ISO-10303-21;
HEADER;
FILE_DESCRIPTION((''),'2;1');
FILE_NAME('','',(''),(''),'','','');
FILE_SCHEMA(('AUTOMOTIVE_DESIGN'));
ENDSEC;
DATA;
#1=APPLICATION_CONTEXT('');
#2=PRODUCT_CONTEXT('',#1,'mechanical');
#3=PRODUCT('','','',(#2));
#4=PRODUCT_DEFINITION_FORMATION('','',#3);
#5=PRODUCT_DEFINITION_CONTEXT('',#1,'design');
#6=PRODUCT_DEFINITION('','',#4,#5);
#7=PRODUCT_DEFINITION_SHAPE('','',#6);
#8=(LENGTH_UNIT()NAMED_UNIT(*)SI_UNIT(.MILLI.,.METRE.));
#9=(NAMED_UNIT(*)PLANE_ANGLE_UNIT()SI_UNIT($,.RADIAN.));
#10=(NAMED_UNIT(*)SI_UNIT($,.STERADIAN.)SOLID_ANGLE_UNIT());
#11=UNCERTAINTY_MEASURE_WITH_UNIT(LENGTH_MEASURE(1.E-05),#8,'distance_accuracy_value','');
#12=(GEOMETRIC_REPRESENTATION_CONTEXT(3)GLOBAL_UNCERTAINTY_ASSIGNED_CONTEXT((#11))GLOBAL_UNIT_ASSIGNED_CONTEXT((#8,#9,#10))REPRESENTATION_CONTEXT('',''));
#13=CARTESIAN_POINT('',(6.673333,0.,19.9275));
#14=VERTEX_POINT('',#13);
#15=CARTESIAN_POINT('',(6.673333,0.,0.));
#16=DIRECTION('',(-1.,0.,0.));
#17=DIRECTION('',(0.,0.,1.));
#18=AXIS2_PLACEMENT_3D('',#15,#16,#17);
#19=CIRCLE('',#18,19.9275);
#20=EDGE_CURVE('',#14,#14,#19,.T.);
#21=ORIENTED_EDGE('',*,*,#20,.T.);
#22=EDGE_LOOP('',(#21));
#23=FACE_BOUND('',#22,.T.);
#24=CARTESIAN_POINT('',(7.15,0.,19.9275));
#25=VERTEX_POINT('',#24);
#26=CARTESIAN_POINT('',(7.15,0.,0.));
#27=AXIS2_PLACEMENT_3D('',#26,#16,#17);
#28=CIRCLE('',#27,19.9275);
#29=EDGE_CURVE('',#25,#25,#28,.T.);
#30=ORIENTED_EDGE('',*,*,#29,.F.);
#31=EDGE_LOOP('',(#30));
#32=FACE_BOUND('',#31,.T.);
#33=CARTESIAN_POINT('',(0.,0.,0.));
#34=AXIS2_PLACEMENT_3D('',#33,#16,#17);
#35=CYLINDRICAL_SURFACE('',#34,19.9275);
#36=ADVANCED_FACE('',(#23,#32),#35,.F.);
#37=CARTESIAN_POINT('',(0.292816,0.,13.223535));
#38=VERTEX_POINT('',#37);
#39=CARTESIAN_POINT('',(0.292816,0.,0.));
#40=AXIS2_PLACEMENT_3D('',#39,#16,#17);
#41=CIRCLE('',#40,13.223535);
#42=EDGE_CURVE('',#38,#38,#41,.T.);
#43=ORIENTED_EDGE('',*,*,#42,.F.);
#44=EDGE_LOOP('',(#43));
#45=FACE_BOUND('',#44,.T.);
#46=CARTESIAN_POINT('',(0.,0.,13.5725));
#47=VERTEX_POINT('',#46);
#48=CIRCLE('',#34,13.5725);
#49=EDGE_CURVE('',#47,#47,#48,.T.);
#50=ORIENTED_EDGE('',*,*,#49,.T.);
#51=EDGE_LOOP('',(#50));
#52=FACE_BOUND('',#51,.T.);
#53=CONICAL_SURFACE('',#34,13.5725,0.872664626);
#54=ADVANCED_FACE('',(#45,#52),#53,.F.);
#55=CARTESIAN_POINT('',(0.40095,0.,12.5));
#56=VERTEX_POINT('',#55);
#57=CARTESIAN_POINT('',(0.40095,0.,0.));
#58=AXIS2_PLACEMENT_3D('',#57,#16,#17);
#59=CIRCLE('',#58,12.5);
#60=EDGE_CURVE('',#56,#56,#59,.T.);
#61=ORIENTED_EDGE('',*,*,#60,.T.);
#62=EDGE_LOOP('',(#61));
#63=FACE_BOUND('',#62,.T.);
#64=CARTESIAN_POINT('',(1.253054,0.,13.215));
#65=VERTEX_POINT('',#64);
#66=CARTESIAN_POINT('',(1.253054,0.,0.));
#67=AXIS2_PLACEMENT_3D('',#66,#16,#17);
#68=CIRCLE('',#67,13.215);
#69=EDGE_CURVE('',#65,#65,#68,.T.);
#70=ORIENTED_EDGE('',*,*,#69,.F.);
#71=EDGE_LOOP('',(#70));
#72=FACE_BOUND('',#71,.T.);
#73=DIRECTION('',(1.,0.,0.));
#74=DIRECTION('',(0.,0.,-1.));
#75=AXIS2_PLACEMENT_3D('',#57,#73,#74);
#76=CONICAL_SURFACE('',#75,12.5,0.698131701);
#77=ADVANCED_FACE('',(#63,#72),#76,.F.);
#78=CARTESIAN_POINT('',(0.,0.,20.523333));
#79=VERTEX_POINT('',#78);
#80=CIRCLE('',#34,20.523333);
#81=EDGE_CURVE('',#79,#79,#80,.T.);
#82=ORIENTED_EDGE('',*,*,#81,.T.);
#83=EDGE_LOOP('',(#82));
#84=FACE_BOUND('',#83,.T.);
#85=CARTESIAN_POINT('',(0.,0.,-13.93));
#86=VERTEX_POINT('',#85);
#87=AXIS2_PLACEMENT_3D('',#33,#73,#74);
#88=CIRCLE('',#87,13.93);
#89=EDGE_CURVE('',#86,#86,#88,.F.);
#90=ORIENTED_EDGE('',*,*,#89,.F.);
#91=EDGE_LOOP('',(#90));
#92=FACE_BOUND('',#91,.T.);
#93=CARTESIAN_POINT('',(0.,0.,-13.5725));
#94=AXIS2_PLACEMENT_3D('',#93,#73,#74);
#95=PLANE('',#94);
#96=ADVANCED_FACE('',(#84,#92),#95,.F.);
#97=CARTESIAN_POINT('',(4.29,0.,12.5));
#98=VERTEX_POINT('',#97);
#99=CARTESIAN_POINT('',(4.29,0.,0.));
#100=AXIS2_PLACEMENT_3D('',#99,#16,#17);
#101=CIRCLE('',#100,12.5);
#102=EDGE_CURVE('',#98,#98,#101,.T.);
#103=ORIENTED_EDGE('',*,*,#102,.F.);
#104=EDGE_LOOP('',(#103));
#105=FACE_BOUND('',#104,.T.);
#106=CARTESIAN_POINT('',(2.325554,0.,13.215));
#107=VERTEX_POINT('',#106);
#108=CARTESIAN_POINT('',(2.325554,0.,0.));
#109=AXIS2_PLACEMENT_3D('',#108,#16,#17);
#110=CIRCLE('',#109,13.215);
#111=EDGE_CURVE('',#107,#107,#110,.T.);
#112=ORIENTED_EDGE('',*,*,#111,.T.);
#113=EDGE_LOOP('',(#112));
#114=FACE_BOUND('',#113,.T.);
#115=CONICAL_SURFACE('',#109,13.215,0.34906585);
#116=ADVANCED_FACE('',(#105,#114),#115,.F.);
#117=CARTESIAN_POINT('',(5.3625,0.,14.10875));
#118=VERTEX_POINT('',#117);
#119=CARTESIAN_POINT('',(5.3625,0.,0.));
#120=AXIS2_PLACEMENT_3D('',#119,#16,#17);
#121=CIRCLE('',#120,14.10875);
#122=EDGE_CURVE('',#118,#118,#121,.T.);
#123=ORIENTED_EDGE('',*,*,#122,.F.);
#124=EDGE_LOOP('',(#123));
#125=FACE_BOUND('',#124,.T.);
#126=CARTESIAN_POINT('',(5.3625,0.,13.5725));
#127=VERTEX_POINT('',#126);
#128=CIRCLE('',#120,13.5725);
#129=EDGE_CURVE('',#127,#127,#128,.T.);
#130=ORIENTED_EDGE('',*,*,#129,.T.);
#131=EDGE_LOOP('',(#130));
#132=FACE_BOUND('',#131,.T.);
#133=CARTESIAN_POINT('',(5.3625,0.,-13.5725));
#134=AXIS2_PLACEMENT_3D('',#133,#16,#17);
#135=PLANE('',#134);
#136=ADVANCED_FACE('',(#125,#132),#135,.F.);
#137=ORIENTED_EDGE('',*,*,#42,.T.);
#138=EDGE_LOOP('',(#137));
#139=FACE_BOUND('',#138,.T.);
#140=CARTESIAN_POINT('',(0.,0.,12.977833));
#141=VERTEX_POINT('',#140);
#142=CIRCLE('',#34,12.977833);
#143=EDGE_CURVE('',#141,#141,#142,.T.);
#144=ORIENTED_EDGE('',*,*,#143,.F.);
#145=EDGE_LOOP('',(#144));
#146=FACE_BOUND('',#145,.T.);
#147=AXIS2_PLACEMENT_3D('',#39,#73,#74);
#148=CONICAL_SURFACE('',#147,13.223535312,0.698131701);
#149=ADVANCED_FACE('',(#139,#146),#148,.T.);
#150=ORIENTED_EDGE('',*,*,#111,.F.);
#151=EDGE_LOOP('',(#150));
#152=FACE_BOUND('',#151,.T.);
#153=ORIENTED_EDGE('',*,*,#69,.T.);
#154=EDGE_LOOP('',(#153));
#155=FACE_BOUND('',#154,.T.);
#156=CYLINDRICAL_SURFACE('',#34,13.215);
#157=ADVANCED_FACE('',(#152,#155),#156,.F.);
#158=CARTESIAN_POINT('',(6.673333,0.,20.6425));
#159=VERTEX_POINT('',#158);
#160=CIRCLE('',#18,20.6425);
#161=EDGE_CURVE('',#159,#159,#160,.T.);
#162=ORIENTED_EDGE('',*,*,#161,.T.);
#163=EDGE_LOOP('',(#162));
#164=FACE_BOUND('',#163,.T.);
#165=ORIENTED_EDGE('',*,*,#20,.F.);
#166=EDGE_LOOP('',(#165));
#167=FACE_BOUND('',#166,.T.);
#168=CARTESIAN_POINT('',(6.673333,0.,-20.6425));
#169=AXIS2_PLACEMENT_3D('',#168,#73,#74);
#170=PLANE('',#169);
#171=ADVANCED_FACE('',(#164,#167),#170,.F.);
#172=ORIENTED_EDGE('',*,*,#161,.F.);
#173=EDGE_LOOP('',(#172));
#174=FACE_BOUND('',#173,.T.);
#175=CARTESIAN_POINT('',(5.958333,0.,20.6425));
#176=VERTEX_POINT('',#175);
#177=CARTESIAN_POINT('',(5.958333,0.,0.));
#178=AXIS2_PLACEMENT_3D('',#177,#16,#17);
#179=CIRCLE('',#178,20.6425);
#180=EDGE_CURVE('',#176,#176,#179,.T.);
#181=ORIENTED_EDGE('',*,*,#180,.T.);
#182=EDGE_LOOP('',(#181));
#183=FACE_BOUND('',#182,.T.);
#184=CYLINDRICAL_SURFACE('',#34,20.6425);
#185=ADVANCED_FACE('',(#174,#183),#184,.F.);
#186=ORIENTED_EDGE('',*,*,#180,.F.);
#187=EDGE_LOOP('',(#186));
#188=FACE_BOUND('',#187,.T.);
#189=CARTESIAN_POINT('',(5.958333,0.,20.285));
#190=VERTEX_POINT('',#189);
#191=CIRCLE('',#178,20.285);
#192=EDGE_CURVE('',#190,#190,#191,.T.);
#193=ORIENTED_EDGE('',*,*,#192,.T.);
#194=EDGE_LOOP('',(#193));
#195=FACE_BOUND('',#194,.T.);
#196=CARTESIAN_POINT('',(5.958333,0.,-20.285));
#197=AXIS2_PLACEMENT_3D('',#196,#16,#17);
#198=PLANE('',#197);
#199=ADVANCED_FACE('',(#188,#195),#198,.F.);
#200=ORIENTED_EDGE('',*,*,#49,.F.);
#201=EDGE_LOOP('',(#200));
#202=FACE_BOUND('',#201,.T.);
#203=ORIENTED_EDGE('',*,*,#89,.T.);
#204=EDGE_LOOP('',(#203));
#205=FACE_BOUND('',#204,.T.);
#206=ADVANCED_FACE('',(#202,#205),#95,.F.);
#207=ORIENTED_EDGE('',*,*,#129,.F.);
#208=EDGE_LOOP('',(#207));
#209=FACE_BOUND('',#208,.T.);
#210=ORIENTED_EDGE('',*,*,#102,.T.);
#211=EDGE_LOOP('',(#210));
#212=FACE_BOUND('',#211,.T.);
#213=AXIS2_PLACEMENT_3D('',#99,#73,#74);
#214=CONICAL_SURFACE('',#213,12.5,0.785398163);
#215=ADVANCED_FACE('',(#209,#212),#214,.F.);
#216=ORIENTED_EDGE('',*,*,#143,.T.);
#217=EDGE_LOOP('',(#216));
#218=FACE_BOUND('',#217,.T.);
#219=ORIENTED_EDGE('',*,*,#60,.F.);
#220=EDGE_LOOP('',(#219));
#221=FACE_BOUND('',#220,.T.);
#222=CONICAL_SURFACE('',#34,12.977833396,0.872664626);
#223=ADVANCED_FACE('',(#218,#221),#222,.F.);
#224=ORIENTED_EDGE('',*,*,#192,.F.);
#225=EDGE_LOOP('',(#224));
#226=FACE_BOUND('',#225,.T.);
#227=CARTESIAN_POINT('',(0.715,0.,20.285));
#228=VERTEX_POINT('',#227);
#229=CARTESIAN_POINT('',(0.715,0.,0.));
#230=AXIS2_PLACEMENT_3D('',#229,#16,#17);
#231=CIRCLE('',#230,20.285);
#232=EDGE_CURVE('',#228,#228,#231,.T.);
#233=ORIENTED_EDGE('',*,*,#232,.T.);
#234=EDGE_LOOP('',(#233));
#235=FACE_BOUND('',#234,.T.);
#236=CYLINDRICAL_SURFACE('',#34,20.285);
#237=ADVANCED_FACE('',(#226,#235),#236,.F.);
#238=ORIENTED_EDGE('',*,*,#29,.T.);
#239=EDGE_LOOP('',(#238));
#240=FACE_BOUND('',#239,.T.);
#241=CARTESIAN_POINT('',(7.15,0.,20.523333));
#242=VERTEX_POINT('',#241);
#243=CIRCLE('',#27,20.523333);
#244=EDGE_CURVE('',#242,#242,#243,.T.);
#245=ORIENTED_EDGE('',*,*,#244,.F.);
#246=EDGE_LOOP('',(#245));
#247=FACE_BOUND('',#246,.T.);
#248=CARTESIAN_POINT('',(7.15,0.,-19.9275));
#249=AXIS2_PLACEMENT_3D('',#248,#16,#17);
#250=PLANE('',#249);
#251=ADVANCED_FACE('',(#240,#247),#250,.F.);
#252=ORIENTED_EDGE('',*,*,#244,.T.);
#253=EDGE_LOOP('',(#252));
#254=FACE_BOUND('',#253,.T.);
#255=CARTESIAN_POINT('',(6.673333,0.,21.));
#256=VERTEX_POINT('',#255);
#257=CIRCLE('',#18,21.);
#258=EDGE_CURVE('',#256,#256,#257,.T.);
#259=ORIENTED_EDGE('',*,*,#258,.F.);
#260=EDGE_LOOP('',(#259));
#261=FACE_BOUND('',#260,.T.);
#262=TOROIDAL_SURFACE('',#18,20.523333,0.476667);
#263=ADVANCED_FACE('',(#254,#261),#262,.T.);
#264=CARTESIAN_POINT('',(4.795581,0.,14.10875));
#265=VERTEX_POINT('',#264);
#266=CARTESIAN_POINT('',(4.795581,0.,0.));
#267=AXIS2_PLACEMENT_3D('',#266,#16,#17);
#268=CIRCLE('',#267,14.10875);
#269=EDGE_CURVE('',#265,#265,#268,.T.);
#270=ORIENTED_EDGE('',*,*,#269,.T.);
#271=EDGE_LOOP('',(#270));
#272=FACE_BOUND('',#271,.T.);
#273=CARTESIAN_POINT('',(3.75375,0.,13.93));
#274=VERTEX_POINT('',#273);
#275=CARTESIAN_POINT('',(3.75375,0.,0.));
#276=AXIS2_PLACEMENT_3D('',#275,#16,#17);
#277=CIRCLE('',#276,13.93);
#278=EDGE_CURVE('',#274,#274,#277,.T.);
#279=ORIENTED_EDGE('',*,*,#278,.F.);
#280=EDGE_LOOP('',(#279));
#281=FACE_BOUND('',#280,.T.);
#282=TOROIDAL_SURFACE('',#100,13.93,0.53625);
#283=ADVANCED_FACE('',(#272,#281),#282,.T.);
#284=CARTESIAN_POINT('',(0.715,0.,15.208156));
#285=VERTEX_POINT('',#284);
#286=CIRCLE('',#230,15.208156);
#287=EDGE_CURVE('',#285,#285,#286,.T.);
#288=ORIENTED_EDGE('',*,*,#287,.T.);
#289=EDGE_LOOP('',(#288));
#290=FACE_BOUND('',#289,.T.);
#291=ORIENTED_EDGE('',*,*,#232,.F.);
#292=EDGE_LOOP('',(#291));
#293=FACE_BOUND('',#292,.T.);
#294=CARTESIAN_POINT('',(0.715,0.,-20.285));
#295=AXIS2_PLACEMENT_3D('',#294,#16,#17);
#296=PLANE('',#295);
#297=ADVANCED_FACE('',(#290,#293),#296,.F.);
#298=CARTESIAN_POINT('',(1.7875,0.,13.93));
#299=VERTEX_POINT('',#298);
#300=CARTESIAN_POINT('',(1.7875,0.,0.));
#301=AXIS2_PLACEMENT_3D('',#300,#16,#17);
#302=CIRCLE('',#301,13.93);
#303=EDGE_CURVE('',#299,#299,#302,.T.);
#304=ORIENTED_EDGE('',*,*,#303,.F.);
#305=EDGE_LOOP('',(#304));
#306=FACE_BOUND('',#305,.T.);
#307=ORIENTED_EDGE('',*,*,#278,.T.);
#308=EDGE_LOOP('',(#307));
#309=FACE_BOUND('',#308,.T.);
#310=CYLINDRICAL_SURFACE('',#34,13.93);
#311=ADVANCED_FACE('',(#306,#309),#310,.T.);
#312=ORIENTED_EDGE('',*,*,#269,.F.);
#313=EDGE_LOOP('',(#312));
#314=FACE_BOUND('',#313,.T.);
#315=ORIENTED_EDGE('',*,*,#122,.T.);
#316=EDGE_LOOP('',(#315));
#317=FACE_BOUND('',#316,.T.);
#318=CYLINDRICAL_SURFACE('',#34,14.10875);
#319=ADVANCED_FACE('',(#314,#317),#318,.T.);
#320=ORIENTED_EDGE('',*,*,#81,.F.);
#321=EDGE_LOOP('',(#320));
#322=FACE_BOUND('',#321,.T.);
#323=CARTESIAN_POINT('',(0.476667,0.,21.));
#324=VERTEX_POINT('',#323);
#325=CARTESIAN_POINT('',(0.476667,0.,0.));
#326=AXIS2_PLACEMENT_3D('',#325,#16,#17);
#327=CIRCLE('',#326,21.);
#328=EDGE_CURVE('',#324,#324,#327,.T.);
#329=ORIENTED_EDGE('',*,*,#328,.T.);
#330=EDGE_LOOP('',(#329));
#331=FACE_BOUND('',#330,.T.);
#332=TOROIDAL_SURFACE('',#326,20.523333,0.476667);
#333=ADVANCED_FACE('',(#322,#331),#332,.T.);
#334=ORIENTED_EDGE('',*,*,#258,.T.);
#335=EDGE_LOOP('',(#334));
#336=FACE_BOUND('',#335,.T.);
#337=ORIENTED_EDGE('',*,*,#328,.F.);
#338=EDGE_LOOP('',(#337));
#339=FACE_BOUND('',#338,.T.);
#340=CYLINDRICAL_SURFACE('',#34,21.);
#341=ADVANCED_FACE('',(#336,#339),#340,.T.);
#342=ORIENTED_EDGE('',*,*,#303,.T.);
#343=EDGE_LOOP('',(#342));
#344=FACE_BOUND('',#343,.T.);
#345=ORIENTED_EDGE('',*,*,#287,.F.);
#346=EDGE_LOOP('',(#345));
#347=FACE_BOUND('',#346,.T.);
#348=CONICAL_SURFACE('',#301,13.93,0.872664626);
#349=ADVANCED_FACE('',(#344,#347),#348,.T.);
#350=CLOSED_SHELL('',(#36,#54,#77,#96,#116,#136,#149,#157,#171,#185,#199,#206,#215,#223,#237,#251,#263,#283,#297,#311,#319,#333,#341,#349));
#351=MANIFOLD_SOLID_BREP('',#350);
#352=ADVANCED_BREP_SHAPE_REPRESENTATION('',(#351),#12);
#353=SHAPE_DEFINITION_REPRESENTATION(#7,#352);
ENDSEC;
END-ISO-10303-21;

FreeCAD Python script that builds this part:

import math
import FreeCAD as App
import Part
import Sketcher
from FreeCAD import Vector
Q = App.Units.Quantity

doc = App.newDocument("Part")
body = doc.addObject("PartDesign::Body", "Body")

sketch1 = body.newObject("Sketcher::SketchObject", "Sketch")
sketch1.AttachmentSupport = (doc.getObject("XZ_Plane"), [""])
sketch1.MapMode = "FlatFace"
sketch1.addGeometry(Part.LineSegment(Vector(0, -20.523333, 0), Vector(0, -13.5725, 0)), False)
sketch1.addGeometry(Part.LineSegment(Vector(0, -13.5725, 0), Vector(0.292816, -13.223535, 0)), False)
sketch1.addGeometry(Part.LineSegment(Vector(0.292816, -13.223535, 0), Vector(0, -12.977833, 0)), False)
sketch1.addGeometry(Part.LineSegment(Vector(0, -12.977833, 0), Vector(0.40095, -12.5, 0)), False)
sketch1.addGeometry(Part.LineSegment(Vector(0.40095, -12.5, 0), Vector(1.253054, -13.215, 0)), False)
sketch1.addGeometry(Part.LineSegment(Vector(1.253054, -13.215, 0), Vector(2.325554, -13.215, 0)), False)
sketch1.addGeometry(Part.LineSegment(Vector(2.325554, -13.215, 0), Vector(4.29, -12.5, 0)), False)
sketch1.addGeometry(Part.LineSegment(Vector(4.29, -12.5, 0), Vector(5.3625, -13.5725, 0)), False)
sketch1.addGeometry(Part.LineSegment(Vector(5.3625, -13.5725, 0), Vector(5.3625, -14.10875, 0)), False)
sketch1.addGeometry(Part.LineSegment(Vector(5.3625, -14.10875, 0), Vector(4.795581, -14.10875, 0)), False)
sketch1.addGeometry(Part.ArcOfCircle(Part.Circle(Vector(4.29, -13.93, 0), Vector(0, 0, 1), 0.53625), math.radians(180), math.radians(340.528779)), False)
sketch1.addGeometry(Part.LineSegment(Vector(3.75375, -13.93, 0), Vector(1.7875, -13.93, 0)), False)
sketch1.addGeometry(Part.LineSegment(Vector(1.7875, -13.93, 0), Vector(0.715, -15.208156, 0)), False)
sketch1.addGeometry(Part.LineSegment(Vector(0.715, -15.208156, 0), Vector(0.715, -20.285, 0)), False)
sketch1.addGeometry(Part.LineSegment(Vector(0.715, -20.285, 0), Vector(5.958333, -20.285, 0)), False)
sketch1.addGeometry(Part.LineSegment(Vector(5.958333, -20.285, 0), Vector(5.958333, -20.6425, 0)), False)
sketch1.addGeometry(Part.LineSegment(Vector(5.958333, -20.6425, 0), Vector(6.673333, -20.6425, 0)), False)
sketch1.addGeometry(Part.LineSegment(Vector(6.673333, -20.6425, 0), Vector(6.673333, -19.9275, 0)), False)
sketch1.addGeometry(Part.LineSegment(Vector(6.673333, -19.9275, 0), Vector(7.15, -19.9275, 0)), False)
sketch1.addGeometry(Part.LineSegment(Vector(7.15, -19.9275, 0), Vector(7.15, -20.523333, 0)), False)
sketch1.addGeometry(Part.ArcOfCircle(Part.Circle(Vector(6.673333, -20.523333, 0), Vector(0, 0, 1), 0.476667), math.radians(-90), math.radians(0)), False)
sketch1.addGeometry(Part.LineSegment(Vector(6.673333, -21, 0), Vector(0.476667, -21, 0)), False)
sketch1.addGeometry(Part.ArcOfCircle(Part.Circle(Vector(0.476667, -20.523333, 0), Vector(0, 0, 1), 0.476667), math.radians(180), math.radians(270)), False)
sketch1.addConstraint(Sketcher.Constraint("Coincident", 0, 2, 1, 1))
sketch1.addConstraint(Sketcher.Constraint("Coincident", 1, 2, 2, 1))
sketch1.addConstraint(Sketcher.Constraint("Coincident", 2, 2, 3, 1))
sketch1.addConstraint(Sketcher.Constraint("Coincident", 3, 2, 4, 1))
sketch1.addConstraint(Sketcher.Constraint("Coincident", 4, 2, 5, 1))
sketch1.addConstraint(Sketcher.Constraint("Coincident", 5, 2, 6, 1))
sketch1.addConstraint(Sketcher.Constraint("Coincident", 6, 2, 7, 1))
sketch1.addConstraint(Sketcher.Constraint("Coincident", 7, 2, 8, 1))
sketch1.addConstraint(Sketcher.Constraint("Coincident", 8, 2, 9, 1))
sketch1.addConstraint(Sketcher.Constraint("Coincident", 9, 2, 10, 2))
sketch1.addConstraint(Sketcher.Constraint("Coincident", 10, 1, 11, 1))
sketch1.addConstraint(Sketcher.Constraint("Coincident", 11, 2, 12, 1))
sketch1.addConstraint(Sketcher.Constraint("Coincident", 12, 2, 13, 1))
sketch1.addConstraint(Sketcher.Constraint("Coincident", 13, 2, 14, 1))
sketch1.addConstraint(Sketcher.Constraint("Coincident", 14, 2, 15, 1))
sketch1.addConstraint(Sketcher.Constraint("Coincident", 15, 2, 16, 1))
sketch1.addConstraint(Sketcher.Constraint("Coincident", 16, 2, 17, 1))
sketch1.addConstraint(Sketcher.Constraint("Coincident", 17, 2, 18, 1))
sketch1.addConstraint(Sketcher.Constraint("Coincident", 18, 2, 19, 1))
sketch1.addConstraint(Sketcher.Constraint("Tangent", 19, 2, 20, 2))
sketch1.addConstraint(Sketcher.Constraint("Tangent", 20, 1, 21, 1))
sketch1.addConstraint(Sketcher.Constraint("Tangent", 21, 2, 22, 2))
sketch1.addConstraint(Sketcher.Constraint("Tangent", 22, 1, 0, 1))
sketch1.addConstraint(Sketcher.Constraint("Vertical", 0))
sketch1.addConstraint(Sketcher.Constraint("Horizontal", 5))
sketch1.addConstraint(Sketcher.Constraint("Vertical", 8))
sketch1.addConstraint(Sketcher.Constraint("Horizontal", 9))
sketch1.addConstraint(Sketcher.Constraint("Horizontal", 11))
sketch1.addConstraint(Sketcher.Constraint("Vertical", 13))
sketch1.addConstraint(Sketcher.Constraint("Horizontal", 14))
sketch1.addConstraint(Sketcher.Constraint("Vertical", 15))
sketch1.addConstraint(Sketcher.Constraint("Horizontal", 16))
sketch1.addConstraint(Sketcher.Constraint("Vertical", 17))
sketch1.addConstraint(Sketcher.Constraint("Horizontal", 18))
sketch1.addConstraint(Sketcher.Constraint("Vertical", 19))
sketch1.addConstraint(Sketcher.Constraint("Horizontal", 21))
sketch1.addConstraint(Sketcher.Constraint("Equal", 20, 22))
sketch1.addConstraint(Sketcher.Constraint("PointOnObject", 0, 2, -2))
sketch1.addConstraint(Sketcher.Constraint("PointOnObject", 2, 2, -2))
sketch1.addConstraint(Sketcher.Constraint("Perpendicular", 1, 2))
sketch1.addConstraint(Sketcher.Constraint("Perpendicular", 2, 3))
sketch1.addConstraint(Sketcher.Constraint("Perpendicular", 3, 4))
sketch1.addConstraint(Sketcher.Constraint("Perpendicular", 4, 12))
sketch1.addConstraint(Sketcher.Constraint("Horizontal", 3, 2, 6, 2))
sketch1.addConstraint(Sketcher.Constraint("Horizontal", 0, 2, 7, 2))
sketch1.addConstraint(Sketcher.Constraint("Vertical", 10, 3, 6, 2))
sketch1.addConstraint(Sketcher.Constraint("Vertical", 20, 3, 16, 2))
sketch1.addConstraint(Sketcher.Constraint("Equal", 16, 17))
sketch1.addConstraint(Sketcher.Constraint("Angle", 1, Q("50 deg")))
sketch1.addConstraint(Sketcher.Constraint("Angle", 6, Q("20 deg")))
sketch1.addConstraint(Sketcher.Constraint("Angle", 7, Q("-45 deg")))
sketch1.addConstraint(Sketcher.Constraint("DistanceY", 20, 1, -1, 1, 21.0))
sketch1.addConstraint(Sketcher.Constraint("DistanceY", 3, 2, -1, 1, 12.5))
sketch1.addConstraint(Sketcher.Constraint("DistanceX", 16, 1, 16, 2, 0.715))
sketch1.addConstraint(Sketcher.Constraint("DistanceX", -1, 1, 10, 3, 4.29))
sketch1.addConstraint(Sketcher.Constraint("DistanceY", 10, 3, -1, 1, 13.93))
sketch1.addConstraint(Sketcher.Constraint("DistanceY", 10, 1, -1, 1, 13.93))
sketch1.addConstraint(Sketcher.Constraint("DistanceX", -1, 1, 18, 2, 7.15))
sketch1.addConstraint(Sketcher.Constraint("Radius", 10, 0.53625))
sketch1.addConstraint(Sketcher.Constraint("DistanceX", 5, 1, 5, 2, 1.0725))
sketch1.addConstraint(Sketcher.Constraint("DistanceY", 15, 2, 15, 1, 0.3575))
sketch1.addConstraint(Sketcher.Constraint("DistanceY", 4, 2, -1, 1, 13.215))
sketch1.addConstraint(Sketcher.Constraint("DistanceX", -1, 1, 12, 2, 0.715))
sketch1.addConstraint(Sketcher.Constraint("DistanceY", 13, 2, -1, 1, 20.285))
sketch1.addConstraint(Sketcher.Constraint("Radius", 20, 0.476667))
sketch1.addConstraint(Sketcher.Constraint("DistanceX", 9, 2, 9, 1, 0.566919))
sketch1.addConstraint(Sketcher.Constraint("DistanceX", 11, 2, 11, 1, 1.96625))
sketch1.addConstraint(Sketcher.Constraint("DistanceY", 8, 2, 8, 1, 0.53625))
revolution = body.newObject("PartDesign::Revolution", "Revolution")
revolution.Profile = sketch1
revolution.ReferenceAxis = (sketch1, ["H_Axis"])
revolution.Angle = 360

doc.recompute()
